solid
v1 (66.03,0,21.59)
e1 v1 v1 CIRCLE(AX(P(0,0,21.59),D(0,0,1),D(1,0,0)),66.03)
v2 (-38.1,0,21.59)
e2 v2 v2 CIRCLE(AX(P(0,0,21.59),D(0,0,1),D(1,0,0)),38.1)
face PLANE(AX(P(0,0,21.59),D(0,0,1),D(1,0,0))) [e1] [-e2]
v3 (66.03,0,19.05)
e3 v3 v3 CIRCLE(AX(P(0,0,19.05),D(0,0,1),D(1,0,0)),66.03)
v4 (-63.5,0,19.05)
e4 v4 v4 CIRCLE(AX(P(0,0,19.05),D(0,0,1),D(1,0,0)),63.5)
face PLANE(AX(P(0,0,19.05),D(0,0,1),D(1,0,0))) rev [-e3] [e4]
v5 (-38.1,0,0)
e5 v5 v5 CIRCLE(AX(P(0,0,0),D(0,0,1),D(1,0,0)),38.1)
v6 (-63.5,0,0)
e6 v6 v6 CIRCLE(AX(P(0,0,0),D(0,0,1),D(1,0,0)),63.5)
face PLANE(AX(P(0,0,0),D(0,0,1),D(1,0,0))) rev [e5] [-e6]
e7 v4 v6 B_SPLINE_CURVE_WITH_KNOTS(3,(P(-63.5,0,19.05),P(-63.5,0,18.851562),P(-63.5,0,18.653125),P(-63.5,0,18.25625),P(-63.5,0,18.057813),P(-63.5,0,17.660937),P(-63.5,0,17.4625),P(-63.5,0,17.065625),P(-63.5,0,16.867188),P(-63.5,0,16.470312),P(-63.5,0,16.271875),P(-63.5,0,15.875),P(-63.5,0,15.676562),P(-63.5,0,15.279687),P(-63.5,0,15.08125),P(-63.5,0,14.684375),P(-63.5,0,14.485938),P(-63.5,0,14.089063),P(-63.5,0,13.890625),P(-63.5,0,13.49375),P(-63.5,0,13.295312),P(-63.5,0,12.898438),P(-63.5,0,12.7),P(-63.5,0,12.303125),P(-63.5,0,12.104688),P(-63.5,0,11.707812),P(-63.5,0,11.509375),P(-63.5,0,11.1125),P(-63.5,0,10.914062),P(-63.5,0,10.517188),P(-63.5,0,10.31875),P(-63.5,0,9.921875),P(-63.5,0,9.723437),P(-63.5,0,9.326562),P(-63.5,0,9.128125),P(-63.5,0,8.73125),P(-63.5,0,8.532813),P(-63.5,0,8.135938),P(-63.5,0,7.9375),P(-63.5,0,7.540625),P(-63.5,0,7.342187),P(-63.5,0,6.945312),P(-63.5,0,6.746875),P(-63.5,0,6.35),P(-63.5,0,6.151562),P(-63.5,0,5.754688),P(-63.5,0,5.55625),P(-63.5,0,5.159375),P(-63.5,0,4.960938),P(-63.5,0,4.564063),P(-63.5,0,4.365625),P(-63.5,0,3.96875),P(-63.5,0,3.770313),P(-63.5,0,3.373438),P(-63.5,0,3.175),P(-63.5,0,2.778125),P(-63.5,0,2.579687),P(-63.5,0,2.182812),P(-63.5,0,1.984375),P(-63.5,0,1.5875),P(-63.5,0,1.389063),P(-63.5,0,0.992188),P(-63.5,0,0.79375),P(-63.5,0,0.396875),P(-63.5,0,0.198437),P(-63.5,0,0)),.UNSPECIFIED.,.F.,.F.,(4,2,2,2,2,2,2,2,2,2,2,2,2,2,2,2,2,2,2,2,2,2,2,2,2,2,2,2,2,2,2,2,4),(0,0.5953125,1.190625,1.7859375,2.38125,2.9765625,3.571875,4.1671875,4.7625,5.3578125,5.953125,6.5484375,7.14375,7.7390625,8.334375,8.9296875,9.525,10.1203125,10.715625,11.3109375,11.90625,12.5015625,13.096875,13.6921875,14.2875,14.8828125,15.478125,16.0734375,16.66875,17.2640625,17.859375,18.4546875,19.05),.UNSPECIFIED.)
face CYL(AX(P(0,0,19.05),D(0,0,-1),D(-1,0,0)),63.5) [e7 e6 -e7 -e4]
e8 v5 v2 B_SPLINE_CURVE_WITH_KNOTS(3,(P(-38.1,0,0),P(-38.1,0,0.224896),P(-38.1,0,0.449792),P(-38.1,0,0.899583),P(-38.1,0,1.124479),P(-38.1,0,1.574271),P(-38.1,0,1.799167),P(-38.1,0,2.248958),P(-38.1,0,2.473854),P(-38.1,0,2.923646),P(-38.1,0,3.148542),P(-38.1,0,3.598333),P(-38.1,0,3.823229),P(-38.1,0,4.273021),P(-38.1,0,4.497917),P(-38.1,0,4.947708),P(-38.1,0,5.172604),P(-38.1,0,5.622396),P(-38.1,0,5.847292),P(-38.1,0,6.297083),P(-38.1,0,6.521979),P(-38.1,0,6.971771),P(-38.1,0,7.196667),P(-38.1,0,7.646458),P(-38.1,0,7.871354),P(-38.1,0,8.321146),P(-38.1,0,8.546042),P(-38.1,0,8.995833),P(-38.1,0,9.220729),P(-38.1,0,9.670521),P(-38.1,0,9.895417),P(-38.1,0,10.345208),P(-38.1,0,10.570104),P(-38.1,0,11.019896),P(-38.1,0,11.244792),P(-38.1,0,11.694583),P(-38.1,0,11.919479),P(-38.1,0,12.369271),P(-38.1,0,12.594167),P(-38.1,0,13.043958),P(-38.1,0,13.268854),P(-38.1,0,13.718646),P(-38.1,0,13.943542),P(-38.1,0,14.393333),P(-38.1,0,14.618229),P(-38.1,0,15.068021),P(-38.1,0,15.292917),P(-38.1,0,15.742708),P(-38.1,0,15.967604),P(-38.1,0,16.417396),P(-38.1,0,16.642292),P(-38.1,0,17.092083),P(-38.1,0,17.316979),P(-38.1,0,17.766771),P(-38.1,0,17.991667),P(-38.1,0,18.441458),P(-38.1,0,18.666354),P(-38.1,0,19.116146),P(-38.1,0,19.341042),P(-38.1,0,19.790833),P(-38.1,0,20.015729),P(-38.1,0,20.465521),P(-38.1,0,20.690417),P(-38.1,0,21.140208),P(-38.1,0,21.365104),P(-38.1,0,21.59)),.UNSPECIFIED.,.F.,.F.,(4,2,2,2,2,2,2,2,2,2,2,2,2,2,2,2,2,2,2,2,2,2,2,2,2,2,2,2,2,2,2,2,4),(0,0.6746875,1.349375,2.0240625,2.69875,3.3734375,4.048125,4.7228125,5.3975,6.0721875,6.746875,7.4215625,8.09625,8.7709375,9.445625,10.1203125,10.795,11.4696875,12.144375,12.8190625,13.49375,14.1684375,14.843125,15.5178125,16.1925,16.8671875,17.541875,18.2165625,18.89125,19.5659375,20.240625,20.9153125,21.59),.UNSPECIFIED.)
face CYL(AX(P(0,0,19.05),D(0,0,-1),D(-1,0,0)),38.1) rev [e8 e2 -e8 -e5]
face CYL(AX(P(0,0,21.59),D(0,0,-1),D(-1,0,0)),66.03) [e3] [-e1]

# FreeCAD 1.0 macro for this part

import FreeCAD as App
import Part
import Sketcher
from FreeCAD import Vector
Q = App.Units.Quantity

doc = App.newDocument("Part")
body = doc.addObject("PartDesign::Body", "Body")

# Sketch on XY plane
sketch1 = body.newObject("Sketcher::SketchObject", "Sketch")
sketch1.AttachmentSupport = (doc.getObject("XY_Plane"), [""])
sketch1.MapMode = "FlatFace"
sketch1.addGeometry(Part.Circle(Vector(0, 0, 0), Vector(0, 0, 1), 64), False)
sketch1.addGeometry(Part.Circle(Vector(0, 0, 0), Vector(0, 0, 1), 38), False)
sketch1.addConstraint(Sketcher.Constraint("Coincident", 0, 3, -1, 1))
sketch1.addConstraint(Sketcher.Constraint("Coincident", 1, 3, -1, 1))
sketch1.addConstraint(Sketcher.Constraint("Diameter", 0, Q("5 in")))
sketch1.addConstraint(Sketcher.Constraint("Diameter", 1, Q("3 in")))
pad1 = body.newObject("PartDesign::Pad", "Pad")
pad1.Profile = sketch1
pad1.Length = Q("0.75 in")

# Sketch on XY plane
sketch2 = body.newObject("Sketcher::SketchObject", "Sketch001")
sketch2.AttachmentSupport = (doc.getObject("XY_Plane"), [""])
sketch2.MapMode = "FlatFace"
sketch2.AttachmentOffset = App.Placement(Vector(0, 0, 0.75 * 25.4), App.Rotation())
sketch2.addGeometry(Part.Circle(Vector(0, 0, 0), Vector(0, 0, 1), 66), False)
sketch2.addGeometry(Part.Circle(Vector(0, 0, 0), Vector(0, 0, 1), 38), False)
sketch2.addConstraint(Sketcher.Constraint("Coincident", 0, 3, -1, 1))
sketch2.addConstraint(Sketcher.Constraint("Coincident", 1, 3, -1, 1))
sketch2.addConstraint(Sketcher.Constraint("Diameter", 1, Q("3 in")))
sketch2.addConstraint(Sketcher.Constraint("Diameter", 0, Q("132.06 mm")))
pad2 = body.newObject("PartDesign::Pad", "Pad001")
pad2.Profile = sketch2
pad2.Length = Q("0.1 in")

doc.recompute()
